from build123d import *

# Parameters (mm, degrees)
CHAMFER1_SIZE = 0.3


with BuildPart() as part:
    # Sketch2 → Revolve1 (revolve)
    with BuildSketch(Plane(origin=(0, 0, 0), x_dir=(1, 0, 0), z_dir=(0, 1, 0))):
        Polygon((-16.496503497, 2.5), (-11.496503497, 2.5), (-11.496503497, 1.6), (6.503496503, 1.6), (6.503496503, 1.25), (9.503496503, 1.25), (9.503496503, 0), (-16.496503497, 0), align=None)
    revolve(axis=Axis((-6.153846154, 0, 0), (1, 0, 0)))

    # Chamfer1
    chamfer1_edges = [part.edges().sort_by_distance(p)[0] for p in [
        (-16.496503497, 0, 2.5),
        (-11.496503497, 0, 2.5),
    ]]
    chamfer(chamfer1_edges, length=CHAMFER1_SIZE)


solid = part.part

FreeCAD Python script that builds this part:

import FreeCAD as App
import Part
import Sketcher

V = App.Vector


def edges_at(feature, points):
    """Names of the edges that pass closest to the given points."""
    edges = feature.Shape.Edges
    near = lambda p: min(range(len(edges)), key=lambda i: edges[i].distToShape(Part.Vertex(*p))[0])
    return sorted({f"Edge{near(p) + 1}" for p in points})


def add_polygon(sketch, points):
    """Adds a closed chain of lines whose ends are joined by coincident constraints."""
    first, n = sketch.GeometryCount, len(points)
    for a, b in zip(points, points[1:] + points[:1]):
        sketch.addGeometry(Part.LineSegment(App.Vector(*a, 0), App.Vector(*b, 0)), False)
    for i in range(n):
        sketch.addConstraint(Sketcher.Constraint("Coincident", first + i, 2, first + (i + 1) % n, 1))

doc = App.newDocument("Part")
params = doc.addObject("Spreadsheet::Sheet", "Params")
for row, (alias, value) in enumerate([
    ("sketch1_width", "5 mm"),
    ("sketch1_width2", "26 mm"),
    ("sketch1_width3", "3 mm"),
    ("sketch1_height", "2.5 mm"),
    ("sketch1_height2", "0.9 mm"),
    ("revolution_angle", "360 deg"),
    ("chamfer_size", "0.3 mm"),
], start=1):
    params.set(f"A{row}", alias)
    params.set(f"B{row}", "=" + value)
    params.setAlias(f"B{row}", alias)

body = doc.addObject("PartDesign::Body", "Body")

# Sketch on XZ plane
sketch1 = body.newObject("Sketcher::SketchObject", "Sketch")
sketch1.AttachmentSupport = (doc.getObject("XZ_Plane"), [""])
sketch1.MapMode = "FlatFace"
add_polygon(sketch1, [(-11.5, -2.5), (-16.5, -2.5), (-16.5, 0), (9.5, 0), (9.5, -1.25), (6.5, -1.25), (6.5, -1.6), (-11.5, -1.6)])  # lines 0-7
sketch1.addConstraint([
    Sketcher.Constraint("Horizontal", 0),
    Sketcher.Constraint("Vertical", 1),
    Sketcher.Constraint("Horizontal", 2),
    Sketcher.Constraint("Vertical", 3),
    Sketcher.Constraint("Horizontal", 4),
    Sketcher.Constraint("Vertical", 5),
    Sketcher.Constraint("Horizontal", 6),
    Sketcher.Constraint("Vertical", 7),
    Sketcher.Constraint("PointOnObject", 1, 2, -1),
    Sketcher.Constraint("DistanceX", 0, 2, 0, 1, 5.0),
    Sketcher.Constraint("DistanceX", 2, 1, 2, 2, 26.0),
    Sketcher.Constraint("DistanceX", 4, 2, 4, 1, 3.0),
    Sketcher.Constraint("DistanceY", 1, 1, 1, 2, 2.5),
    Sketcher.Constraint("DistanceY", 7, 2, 7, 1, 0.9),
    Sketcher.Constraint("DistanceY", 3, 2, 3, 1, 1.25),
    Sketcher.Constraint("DistanceX", 0, 2, -1, 1, 16.496503),
])
sketch1.setExpression("Constraints[17]", "Params.sketch1_width")
sketch1.setExpression("Constraints[18]", "Params.sketch1_width2")
sketch1.setExpression("Constraints[19]", "Params.sketch1_width3")
sketch1.setExpression("Constraints[20]", "Params.sketch1_height")
sketch1.setExpression("Constraints[21]", "Params.sketch1_height2")
revolution = body.newObject("PartDesign::Revolution", "Revolution")
revolution.Profile = sketch1
revolution.ReferenceAxis = (sketch1, ["H_Axis"])
revolution.setExpression("Angle", "Params.revolution_angle")
doc.recompute()

chamfer = body.newObject("PartDesign::Chamfer", "Chamfer")
chamfer.Base = (revolution, edges_at(revolution, [(-16.497, 0, 2.5), (-11.497, 0, 2.5)]))
chamfer.setExpression("Size", "Params.chamfer_size")

doc.recompute()
